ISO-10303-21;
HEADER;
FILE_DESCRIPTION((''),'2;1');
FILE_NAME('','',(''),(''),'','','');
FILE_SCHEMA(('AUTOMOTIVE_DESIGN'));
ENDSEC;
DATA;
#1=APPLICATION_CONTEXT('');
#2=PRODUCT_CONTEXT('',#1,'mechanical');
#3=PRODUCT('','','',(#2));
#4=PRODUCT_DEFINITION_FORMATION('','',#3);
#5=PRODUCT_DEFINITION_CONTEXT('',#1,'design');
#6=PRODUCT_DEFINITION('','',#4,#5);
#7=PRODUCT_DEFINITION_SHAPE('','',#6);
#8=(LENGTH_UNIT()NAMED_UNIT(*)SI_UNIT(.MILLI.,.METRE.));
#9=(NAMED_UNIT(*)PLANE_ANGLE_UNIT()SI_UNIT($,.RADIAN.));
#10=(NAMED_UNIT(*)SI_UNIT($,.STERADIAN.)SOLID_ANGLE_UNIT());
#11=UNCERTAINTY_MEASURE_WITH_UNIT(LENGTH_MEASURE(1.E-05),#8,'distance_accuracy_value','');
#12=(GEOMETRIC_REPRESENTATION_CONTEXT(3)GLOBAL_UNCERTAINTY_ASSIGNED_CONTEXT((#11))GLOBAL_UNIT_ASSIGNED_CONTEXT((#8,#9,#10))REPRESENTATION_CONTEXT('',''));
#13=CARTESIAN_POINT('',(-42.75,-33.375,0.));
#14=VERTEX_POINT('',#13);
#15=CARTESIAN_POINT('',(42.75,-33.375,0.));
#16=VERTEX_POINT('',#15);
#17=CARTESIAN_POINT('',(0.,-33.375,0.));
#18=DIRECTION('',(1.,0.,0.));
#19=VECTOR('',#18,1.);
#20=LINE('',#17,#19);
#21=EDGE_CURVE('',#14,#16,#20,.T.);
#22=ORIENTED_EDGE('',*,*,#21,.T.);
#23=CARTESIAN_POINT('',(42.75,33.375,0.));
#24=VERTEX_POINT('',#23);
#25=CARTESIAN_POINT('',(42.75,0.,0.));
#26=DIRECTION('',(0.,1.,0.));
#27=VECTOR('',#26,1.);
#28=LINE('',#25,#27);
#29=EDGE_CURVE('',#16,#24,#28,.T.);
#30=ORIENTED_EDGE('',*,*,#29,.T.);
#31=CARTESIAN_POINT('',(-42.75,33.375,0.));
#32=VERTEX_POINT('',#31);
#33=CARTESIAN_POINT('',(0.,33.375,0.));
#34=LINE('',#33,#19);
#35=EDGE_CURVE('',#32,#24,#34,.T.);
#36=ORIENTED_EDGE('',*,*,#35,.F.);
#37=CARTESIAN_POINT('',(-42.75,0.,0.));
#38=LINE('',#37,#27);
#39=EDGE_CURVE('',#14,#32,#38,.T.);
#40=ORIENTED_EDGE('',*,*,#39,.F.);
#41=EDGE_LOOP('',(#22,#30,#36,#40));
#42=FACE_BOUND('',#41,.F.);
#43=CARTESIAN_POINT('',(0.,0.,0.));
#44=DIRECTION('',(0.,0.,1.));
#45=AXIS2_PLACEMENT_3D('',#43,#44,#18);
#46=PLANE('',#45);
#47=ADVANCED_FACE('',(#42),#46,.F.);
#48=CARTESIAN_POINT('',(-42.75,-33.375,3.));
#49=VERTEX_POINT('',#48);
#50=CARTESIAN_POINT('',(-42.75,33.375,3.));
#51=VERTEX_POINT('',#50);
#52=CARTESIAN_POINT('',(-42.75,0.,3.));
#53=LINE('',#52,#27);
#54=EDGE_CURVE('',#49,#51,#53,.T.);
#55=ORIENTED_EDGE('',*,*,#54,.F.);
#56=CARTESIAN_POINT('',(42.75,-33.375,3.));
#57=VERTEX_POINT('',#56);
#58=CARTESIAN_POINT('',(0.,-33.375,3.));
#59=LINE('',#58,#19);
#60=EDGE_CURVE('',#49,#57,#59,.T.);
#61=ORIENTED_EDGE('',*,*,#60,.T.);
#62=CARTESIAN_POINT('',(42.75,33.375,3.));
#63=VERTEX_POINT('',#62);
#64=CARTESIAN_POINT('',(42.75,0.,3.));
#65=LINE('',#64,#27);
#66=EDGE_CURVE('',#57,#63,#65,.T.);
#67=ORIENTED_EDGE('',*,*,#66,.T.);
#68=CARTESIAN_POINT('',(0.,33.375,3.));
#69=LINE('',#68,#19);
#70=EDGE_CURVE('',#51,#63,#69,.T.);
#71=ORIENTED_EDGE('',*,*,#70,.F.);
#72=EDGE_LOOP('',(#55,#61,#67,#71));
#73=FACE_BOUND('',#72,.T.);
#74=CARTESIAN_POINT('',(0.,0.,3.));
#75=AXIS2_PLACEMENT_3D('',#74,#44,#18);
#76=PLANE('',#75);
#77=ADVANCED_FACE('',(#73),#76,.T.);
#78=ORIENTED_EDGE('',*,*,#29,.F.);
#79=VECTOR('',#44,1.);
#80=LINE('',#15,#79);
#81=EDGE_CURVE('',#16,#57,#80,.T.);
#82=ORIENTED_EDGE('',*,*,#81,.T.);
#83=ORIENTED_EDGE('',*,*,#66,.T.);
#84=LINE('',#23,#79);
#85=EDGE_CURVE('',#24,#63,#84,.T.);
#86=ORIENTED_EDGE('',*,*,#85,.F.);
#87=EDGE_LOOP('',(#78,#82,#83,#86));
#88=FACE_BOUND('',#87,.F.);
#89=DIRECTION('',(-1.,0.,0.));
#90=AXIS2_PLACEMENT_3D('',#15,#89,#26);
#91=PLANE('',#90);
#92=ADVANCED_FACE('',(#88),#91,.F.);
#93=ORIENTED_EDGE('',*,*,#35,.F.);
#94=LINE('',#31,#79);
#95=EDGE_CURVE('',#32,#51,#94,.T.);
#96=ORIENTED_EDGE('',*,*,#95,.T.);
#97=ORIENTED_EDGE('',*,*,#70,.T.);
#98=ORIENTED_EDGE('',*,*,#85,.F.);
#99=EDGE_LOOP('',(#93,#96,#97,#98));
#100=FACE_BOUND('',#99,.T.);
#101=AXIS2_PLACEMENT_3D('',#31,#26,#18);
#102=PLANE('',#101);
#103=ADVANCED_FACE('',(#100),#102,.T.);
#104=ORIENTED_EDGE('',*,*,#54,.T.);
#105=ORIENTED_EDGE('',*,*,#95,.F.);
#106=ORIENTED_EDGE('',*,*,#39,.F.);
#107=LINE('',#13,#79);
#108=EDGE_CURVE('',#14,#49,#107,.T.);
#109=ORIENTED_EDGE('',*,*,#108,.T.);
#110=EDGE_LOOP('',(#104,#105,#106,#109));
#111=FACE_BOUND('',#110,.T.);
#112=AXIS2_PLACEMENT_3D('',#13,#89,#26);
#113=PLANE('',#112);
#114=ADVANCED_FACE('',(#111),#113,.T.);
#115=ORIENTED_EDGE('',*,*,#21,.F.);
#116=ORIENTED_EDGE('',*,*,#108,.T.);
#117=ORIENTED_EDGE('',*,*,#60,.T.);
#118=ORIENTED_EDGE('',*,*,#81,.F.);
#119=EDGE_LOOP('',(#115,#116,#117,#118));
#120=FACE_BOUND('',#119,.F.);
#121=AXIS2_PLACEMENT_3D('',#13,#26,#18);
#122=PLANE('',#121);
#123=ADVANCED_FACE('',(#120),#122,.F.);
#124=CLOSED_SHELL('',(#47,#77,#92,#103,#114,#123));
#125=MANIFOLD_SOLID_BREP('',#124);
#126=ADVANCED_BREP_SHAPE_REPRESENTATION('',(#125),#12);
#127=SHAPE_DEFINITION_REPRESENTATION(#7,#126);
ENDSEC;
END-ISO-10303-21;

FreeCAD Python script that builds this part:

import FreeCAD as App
import Part
import Sketcher

doc = App.newDocument("Part")
params = doc.addObject("Spreadsheet::Sheet", "Params")
for row, (alias, value) in enumerate([
    ("sketch1_width", "85.5 mm"),
    ("sketch1_height", "66.75 mm"),
    ("pad1_length", "3 mm"),
], start=1):
    params.set(f"A{row}", alias)
    params.set(f"B{row}", "=" + value)
    params.setAlias(f"B{row}", alias)

body = doc.addObject("PartDesign::Body", "Body")

sketch1 = body.newObject("Sketcher::SketchObject", "Sketch")
sketch1.AttachmentSupport = (doc.getObject("XY_Plane"), [""])
sketch1.MapMode = "FlatFace"
sketch1.addGeometry(Part.LineSegment(App.Vector(-43, 33, 0), App.Vector(-43, -33, 0)), False)
sketch1.addGeometry(Part.LineSegment(App.Vector(-43, -33, 0), App.Vector(43, -33, 0)), False)
sketch1.addGeometry(Part.LineSegment(App.Vector(43, -33, 0), App.Vector(43, 33, 0)), False)
sketch1.addGeometry(Part.LineSegment(App.Vector(43, 33, 0), App.Vector(-43, 33, 0)), False)
sketch1.addConstraint(Sketcher.Constraint("Coincident", 0, 2, 1, 1))
sketch1.addConstraint(Sketcher.Constraint("Coincident", 1, 2, 2, 1))
sketch1.addConstraint(Sketcher.Constraint("Coincident", 2, 2, 3, 1))
sketch1.addConstraint(Sketcher.Constraint("Coincident", 3, 2, 0, 1))
sketch1.addConstraint(Sketcher.Constraint("Vertical", 0))
sketch1.addConstraint(Sketcher.Constraint("Horizontal", 1))
sketch1.addConstraint(Sketcher.Constraint("Vertical", 2))
sketch1.addConstraint(Sketcher.Constraint("Horizontal", 3))
sketch1.addConstraint(Sketcher.Constraint("Symmetric", 0, 2, 2, 2, -1, 1))
sketch1.addConstraint(Sketcher.Constraint("DistanceX", 1, 1, 1, 2, 85.5))
sketch1.addConstraint(Sketcher.Constraint("DistanceY", 0, 2, 0, 1, 66.75))
sketch1.setExpression("Constraints[9]", "Params.sketch1_width")
sketch1.setExpression("Constraints[10]", "Params.sketch1_height")
pad1 = body.newObject("PartDesign::Pad", "Pad")
pad1.Profile = sketch1
pad1.setExpression("Length", "Params.pad1_length")

doc.recompute()
